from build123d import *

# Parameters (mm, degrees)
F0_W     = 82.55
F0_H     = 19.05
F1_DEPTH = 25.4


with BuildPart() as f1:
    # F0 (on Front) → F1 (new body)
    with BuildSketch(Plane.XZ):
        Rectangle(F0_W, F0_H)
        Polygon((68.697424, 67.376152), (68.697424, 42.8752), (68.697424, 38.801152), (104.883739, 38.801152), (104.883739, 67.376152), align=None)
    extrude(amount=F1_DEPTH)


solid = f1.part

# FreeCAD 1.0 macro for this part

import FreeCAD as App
import Part
import Sketcher
from FreeCAD import Vector
Q = App.Units.Quantity


def add_polygon(sketch, points):
    """Adds a closed chain of lines whose ends are joined by coincident constraints."""
    first, n = sketch.GeometryCount, len(points)
    for a, b in zip(points, points[1:] + points[:1]):
        sketch.addGeometry(Part.LineSegment(App.Vector(*a, 0), App.Vector(*b, 0)), False)
    for i in range(n):
        sketch.addConstraint(Sketcher.Constraint("Coincident", first + i, 2, first + (i + 1) % n, 1))

doc = App.newDocument("Part")
body = doc.addObject("PartDesign::Body", "Body")
body.AllowCompound = True

# Sketch on XZ plane
sketch1 = doc.addObject("Sketcher::SketchObject", "Sketch")
body.addObject(sketch1)
sketch1.AttachmentSupport = (doc.XZ_Plane, [""])
sketch1.MapMode = "FlatFace"
add_polygon(sketch1, [(-41, 10), (-41, -10), (41, -10), (41, 10)])  # lines 0-3
add_polygon(sketch1, [(69, 67), (69, 39), (105, 39), (105, 67)])  # lines 4-7
sketch1.addConstraint([
    Sketcher.Constraint("Vertical", 0),
    Sketcher.Constraint("Horizontal", 1),
    Sketcher.Constraint("Vertical", 2),
    Sketcher.Constraint("Horizontal", 3),
    Sketcher.Constraint("Vertical", 4),
    Sketcher.Constraint("Horizontal", 5),
    Sketcher.Constraint("Vertical", 6),
    Sketcher.Constraint("Horizontal", 7),
    Sketcher.Constraint("Symmetric", 0, 2, 2, 2, -1, 1),
    Sketcher.Constraint("DistanceX", 1, 1, 1, 2, Q("3.25 in")),
    Sketcher.Constraint("DistanceY", 0, 2, 0, 1, Q("0.75 in")),
    Sketcher.Constraint("DistanceY", 4, 2, 4, 1, Q("1.125 in")),
    Sketcher.Constraint("DistanceX", 5, 1, 5, 2, Q("36.186315 mm")),
    Sketcher.Constraint("DistanceX", -1, 1, 5, 2, Q("104.883739 mm")),
    Sketcher.Constraint("DistanceY", -1, 1, 4, 2, Q("38.801152 mm")),
])
pad1 = doc.addObject("PartDesign::Pad", "Pad")
body.addObject(pad1)
pad1.Profile = sketch1
pad1.Length = Q("1 in")

doc.recompute()
